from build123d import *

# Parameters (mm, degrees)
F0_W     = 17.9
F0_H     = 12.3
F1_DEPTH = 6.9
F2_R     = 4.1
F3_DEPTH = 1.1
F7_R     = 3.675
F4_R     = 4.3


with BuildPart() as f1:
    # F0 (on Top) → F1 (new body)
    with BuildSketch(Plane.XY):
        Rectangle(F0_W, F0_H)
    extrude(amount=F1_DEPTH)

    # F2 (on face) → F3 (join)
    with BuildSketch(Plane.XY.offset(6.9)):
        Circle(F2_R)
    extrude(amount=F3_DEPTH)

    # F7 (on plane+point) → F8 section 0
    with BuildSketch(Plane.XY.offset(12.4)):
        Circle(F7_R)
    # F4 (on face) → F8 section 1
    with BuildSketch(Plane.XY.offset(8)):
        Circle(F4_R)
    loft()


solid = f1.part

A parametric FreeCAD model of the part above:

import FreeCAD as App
import Part
import Sketcher
Q = App.Units.Quantity

doc = App.newDocument("Part")
body = doc.addObject("PartDesign::Body", "Body")

# Sketch on XY plane
sketch1 = doc.addObject("Sketcher::SketchObject", "Sketch")
body.addObject(sketch1)
sketch1.AttachmentSupport = (doc.XY_Plane, [""])
sketch1.MapMode = "FlatFace"
sketch1.addGeometry(Part.LineSegment(App.Vector(-9, 6, 0), App.Vector(-9, -6, 0)), False)
sketch1.addGeometry(Part.LineSegment(App.Vector(-9, -6, 0), App.Vector(9, -6, 0)), False)
sketch1.addGeometry(Part.LineSegment(App.Vector(9, -6, 0), App.Vector(9, 6, 0)), False)
sketch1.addGeometry(Part.LineSegment(App.Vector(9, 6, 0), App.Vector(-9, 6, 0)), False)
sketch1.addConstraint(Sketcher.Constraint("Coincident", 0, 2, 1, 1))
sketch1.addConstraint(Sketcher.Constraint("Coincident", 1, 2, 2, 1))
sketch1.addConstraint(Sketcher.Constraint("Coincident", 2, 2, 3, 1))
sketch1.addConstraint(Sketcher.Constraint("Coincident", 3, 2, 0, 1))
sketch1.addConstraint(Sketcher.Constraint("Vertical", 0))
sketch1.addConstraint(Sketcher.Constraint("Horizontal", 1))
sketch1.addConstraint(Sketcher.Constraint("Vertical", 2))
sketch1.addConstraint(Sketcher.Constraint("Horizontal", 3))
sketch1.addConstraint(Sketcher.Constraint("Symmetric", 0, 2, 2, 2, -1, 1))
sketch1.addConstraint(Sketcher.Constraint("DistanceX", 1, 1, 1, 2, Q("17.9 mm")))
sketch1.addConstraint(Sketcher.Constraint("DistanceY", 0, 2, 0, 1, Q("12.3 mm")))
pad1 = doc.addObject("PartDesign::Pad", "Pad")
body.addObject(pad1)
pad1.Profile = sketch1
pad1.Length = 6.9

# Sketch on XY plane
sketch2 = doc.addObject("Sketcher::SketchObject", "Sketch001")
body.addObject(sketch2)
sketch2.AttachmentSupport = (doc.XY_Plane, [""])
sketch2.MapMode = "FlatFace"
sketch2.AttachmentOffset = App.Placement(App.Vector(0, 0, 6.9), App.Rotation())
sketch2.addGeometry(Part.Circle(App.Vector(0, 0, 0), App.Vector(0, 0, 1), 4.1), False)
sketch2.addConstraint(Sketcher.Constraint("Coincident", 0, 3, -1, 1))
sketch2.addConstraint(Sketcher.Constraint("Diameter", 0, Q("8.2 mm")))
pad2 = doc.addObject("PartDesign::Pad", "Pad001")
body.addObject(pad2)
pad2.Profile = sketch2
pad2.Length = 1.1

# Sketch on XY plane
sketch3 = doc.addObject("Sketcher::SketchObject", "Sketch002")
body.addObject(sketch3)
sketch3.AttachmentSupport = (doc.XY_Plane, [""])
sketch3.MapMode = "FlatFace"
sketch3.AttachmentOffset = App.Placement(App.Vector(0, 0, 12.4), App.Rotation())
sketch3.addGeometry(Part.Circle(App.Vector(0, 0, 0), App.Vector(0, 0, 1), 3.7), False)
sketch3.addConstraint(Sketcher.Constraint("Coincident", 0, 3, -1, 1))
sketch3.addConstraint(Sketcher.Constraint("Diameter", 0, Q("7.35 mm")))

# Sketch on XY plane
sketch4 = doc.addObject("Sketcher::SketchObject", "Sketch003")
body.addObject(sketch4)
sketch4.AttachmentSupport = (doc.XY_Plane, [""])
sketch4.MapMode = "FlatFace"
sketch4.AttachmentOffset = App.Placement(App.Vector(0, 0, 8), App.Rotation())
sketch4.addGeometry(Part.Circle(App.Vector(0, 0, 0), App.Vector(0, 0, 1), 4.3), False)
sketch4.addConstraint(Sketcher.Constraint("Coincident", 0, 3, -1, 1))
sketch4.addConstraint(Sketcher.Constraint("Diameter", 0, Q("8.6 mm")))

additiveloft = doc.addObject("PartDesign::AdditiveLoft", "AdditiveLoft")
body.addObject(additiveloft)
additiveloft.Profile = sketch3
additiveloft.Sections = [sketch4]

doc.recompute()
